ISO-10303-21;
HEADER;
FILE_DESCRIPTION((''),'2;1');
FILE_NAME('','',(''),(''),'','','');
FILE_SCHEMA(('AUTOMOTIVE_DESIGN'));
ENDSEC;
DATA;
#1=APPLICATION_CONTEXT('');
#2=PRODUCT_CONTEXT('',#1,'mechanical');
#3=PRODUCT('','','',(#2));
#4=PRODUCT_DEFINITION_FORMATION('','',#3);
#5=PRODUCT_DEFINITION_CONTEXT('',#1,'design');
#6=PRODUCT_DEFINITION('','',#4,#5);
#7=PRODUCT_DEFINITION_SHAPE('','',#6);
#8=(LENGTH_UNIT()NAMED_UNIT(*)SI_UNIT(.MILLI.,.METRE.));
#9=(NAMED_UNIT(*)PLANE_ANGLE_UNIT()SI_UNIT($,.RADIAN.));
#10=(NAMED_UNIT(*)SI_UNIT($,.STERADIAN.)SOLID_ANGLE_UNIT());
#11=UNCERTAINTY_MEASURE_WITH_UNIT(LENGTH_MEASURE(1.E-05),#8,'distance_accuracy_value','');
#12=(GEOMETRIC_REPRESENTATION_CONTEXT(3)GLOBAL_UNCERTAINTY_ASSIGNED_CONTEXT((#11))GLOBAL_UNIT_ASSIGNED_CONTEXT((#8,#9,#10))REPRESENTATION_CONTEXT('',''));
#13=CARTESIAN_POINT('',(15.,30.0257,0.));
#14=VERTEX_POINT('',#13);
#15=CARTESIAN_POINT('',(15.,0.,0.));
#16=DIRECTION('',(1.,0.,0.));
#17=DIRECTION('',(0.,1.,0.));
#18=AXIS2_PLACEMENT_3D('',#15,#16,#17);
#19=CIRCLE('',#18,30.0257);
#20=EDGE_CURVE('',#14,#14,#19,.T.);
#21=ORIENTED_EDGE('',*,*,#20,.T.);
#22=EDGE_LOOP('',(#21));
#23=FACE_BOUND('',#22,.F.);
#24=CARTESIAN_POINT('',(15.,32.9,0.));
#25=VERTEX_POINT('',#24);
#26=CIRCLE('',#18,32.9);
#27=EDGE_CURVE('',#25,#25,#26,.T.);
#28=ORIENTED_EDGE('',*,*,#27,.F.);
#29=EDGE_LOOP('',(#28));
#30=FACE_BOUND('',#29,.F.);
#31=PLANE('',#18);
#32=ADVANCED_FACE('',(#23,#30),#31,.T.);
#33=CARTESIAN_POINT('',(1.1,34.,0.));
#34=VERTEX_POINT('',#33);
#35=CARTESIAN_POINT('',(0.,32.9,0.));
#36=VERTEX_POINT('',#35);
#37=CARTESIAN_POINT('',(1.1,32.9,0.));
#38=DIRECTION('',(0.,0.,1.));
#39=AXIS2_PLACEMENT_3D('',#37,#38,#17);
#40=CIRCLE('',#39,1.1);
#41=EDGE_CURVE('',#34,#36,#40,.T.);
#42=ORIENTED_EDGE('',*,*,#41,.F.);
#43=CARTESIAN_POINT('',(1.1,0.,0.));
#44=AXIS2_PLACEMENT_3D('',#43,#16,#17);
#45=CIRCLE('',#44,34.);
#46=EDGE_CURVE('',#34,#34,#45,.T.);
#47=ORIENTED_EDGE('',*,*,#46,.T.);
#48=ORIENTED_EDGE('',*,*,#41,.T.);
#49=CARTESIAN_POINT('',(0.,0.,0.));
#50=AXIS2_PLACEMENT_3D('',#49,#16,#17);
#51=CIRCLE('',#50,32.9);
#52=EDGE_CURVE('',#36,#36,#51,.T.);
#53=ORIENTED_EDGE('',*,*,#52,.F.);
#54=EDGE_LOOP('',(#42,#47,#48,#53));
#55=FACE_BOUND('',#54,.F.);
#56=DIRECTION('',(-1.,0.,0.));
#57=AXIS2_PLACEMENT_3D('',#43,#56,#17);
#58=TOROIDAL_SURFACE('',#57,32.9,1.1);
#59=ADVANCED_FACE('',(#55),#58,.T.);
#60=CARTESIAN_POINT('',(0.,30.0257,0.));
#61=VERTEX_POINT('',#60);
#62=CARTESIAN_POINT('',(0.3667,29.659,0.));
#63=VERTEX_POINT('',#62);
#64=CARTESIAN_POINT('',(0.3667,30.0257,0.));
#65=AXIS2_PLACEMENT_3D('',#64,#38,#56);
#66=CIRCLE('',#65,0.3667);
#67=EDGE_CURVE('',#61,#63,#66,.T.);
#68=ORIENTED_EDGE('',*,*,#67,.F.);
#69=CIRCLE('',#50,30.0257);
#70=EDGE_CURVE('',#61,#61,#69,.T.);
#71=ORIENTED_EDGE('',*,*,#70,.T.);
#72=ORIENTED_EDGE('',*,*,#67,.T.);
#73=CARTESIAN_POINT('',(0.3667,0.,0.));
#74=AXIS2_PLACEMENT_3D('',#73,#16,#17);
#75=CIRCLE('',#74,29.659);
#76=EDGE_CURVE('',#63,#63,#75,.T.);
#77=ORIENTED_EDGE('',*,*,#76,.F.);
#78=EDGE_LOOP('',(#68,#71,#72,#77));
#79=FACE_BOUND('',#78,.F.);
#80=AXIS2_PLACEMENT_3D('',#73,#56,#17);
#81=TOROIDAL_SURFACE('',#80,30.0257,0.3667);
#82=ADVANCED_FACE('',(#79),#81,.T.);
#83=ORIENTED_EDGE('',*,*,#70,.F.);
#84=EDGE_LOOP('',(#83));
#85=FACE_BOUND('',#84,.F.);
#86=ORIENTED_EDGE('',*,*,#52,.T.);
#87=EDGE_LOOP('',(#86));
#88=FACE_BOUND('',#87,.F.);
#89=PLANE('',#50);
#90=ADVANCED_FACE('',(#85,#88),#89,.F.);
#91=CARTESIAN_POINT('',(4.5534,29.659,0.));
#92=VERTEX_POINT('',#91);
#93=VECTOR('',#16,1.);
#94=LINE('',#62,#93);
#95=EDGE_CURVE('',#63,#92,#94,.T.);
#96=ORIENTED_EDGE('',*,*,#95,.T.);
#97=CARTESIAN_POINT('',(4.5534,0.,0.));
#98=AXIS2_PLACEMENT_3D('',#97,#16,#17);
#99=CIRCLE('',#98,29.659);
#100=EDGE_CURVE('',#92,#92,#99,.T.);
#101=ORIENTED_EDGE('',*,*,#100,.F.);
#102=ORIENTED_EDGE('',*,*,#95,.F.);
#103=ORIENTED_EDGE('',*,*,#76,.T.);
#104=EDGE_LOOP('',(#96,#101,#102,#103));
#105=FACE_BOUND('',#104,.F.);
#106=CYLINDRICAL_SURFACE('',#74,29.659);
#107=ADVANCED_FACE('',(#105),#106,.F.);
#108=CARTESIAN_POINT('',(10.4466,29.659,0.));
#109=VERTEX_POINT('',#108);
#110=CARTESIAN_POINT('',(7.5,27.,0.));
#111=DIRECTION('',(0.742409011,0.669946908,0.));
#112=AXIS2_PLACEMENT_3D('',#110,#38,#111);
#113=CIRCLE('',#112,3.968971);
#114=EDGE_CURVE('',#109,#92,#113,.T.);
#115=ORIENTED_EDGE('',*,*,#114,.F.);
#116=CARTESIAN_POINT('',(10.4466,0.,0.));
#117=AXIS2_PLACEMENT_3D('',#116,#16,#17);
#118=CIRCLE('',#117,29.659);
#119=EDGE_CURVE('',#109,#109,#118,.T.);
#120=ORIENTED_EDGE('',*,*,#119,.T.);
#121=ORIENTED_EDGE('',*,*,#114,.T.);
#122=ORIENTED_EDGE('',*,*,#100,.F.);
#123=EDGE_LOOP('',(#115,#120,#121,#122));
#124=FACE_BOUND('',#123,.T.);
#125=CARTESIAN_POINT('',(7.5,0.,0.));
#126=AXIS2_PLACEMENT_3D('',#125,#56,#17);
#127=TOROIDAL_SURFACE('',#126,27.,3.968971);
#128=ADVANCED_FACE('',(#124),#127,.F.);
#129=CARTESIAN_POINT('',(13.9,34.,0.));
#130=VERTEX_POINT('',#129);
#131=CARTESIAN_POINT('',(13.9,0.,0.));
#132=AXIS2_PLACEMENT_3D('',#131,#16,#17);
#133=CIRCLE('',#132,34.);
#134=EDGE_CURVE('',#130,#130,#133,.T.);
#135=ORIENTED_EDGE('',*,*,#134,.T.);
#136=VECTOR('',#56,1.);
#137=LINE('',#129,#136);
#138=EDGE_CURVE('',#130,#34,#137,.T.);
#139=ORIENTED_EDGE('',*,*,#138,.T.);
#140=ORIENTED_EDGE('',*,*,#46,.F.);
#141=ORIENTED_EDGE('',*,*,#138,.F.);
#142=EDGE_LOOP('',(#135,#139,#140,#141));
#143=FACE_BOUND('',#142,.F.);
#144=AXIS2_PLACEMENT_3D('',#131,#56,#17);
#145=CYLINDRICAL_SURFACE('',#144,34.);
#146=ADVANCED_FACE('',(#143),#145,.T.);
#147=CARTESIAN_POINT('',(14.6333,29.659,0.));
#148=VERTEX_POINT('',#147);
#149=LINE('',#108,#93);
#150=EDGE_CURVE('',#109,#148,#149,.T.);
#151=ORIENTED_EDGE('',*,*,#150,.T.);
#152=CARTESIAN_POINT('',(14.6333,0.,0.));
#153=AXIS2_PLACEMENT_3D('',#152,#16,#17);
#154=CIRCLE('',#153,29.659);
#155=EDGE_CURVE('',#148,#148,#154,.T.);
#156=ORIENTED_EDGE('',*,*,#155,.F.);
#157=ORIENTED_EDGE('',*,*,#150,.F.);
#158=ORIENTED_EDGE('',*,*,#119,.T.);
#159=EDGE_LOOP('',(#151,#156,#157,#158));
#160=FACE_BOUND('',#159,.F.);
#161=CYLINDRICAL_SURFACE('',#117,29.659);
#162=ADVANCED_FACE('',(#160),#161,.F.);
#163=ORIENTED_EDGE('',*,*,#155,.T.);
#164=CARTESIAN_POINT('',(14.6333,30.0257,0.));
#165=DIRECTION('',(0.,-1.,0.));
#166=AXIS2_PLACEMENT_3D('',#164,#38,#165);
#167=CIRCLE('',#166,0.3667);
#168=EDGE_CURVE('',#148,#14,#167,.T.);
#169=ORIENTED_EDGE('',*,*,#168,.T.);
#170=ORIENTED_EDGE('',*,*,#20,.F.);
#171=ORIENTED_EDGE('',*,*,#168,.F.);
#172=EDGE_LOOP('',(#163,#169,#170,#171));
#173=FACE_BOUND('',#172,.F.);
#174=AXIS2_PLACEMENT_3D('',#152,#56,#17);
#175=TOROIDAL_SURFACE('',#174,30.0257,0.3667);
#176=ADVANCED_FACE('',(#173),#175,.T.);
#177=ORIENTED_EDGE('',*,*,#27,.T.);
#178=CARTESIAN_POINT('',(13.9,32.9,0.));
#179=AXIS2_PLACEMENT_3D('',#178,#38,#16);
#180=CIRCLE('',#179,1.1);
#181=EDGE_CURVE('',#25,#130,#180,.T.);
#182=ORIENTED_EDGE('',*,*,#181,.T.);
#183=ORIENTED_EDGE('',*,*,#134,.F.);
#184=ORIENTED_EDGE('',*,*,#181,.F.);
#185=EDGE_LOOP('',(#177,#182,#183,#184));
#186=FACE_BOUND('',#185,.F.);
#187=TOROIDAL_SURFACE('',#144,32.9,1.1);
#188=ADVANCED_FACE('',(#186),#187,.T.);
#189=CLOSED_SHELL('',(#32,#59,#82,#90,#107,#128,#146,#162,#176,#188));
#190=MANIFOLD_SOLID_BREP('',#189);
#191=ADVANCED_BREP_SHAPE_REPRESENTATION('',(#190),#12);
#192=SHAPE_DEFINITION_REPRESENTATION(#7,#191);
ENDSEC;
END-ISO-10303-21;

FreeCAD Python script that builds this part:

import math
import FreeCAD as App
import Part
import Sketcher
Q = App.Units.Quantity

doc = App.newDocument("Part")
body = doc.addObject("PartDesign::Body", "Body")

sketch1 = body.newObject("Sketcher::SketchObject", "Sketch")
sketch1.AttachmentSupport = (doc.getObject("XY_Plane"), [""])
sketch1.MapMode = "FlatFace"
sketch1.addGeometry([
    Part.ArcOfCircle(Part.Circle(App.Vector(1.1, 32.9, 0), App.Vector(0, 0, 1), 1.1), math.radians(90), math.radians(180)),
    Part.LineSegment(App.Vector(0, 32.9, 0), App.Vector(0, 30.0257, 0)),
    Part.ArcOfCircle(Part.Circle(App.Vector(0.3667, 30.0257, 0), App.Vector(0, 0, 1), 0.3667), math.radians(180), math.radians(270)),
    Part.LineSegment(App.Vector(0.3667, 29.659, 0), App.Vector(4.5534, 29.659, 0)),
    Part.ArcOfCircle(Part.Circle(App.Vector(7.5, 27, 0), App.Vector(0, 0, 1), 3.968971), math.radians(42.062967), math.radians(137.937033)),
    Part.LineSegment(App.Vector(10.4466, 29.659, 0), App.Vector(14.6333, 29.659, 0)),
    Part.ArcOfCircle(Part.Circle(App.Vector(14.6333, 30.0257, 0), App.Vector(0, 0, 1), 0.3667), math.radians(-90), math.radians(0)),
    Part.LineSegment(App.Vector(15, 30.0257, 0), App.Vector(15, 32.9, 0)),
    Part.ArcOfCircle(Part.Circle(App.Vector(13.9, 32.9, 0), App.Vector(0, 0, 1), 1.1), math.radians(0), math.radians(90)),
    Part.LineSegment(App.Vector(13.9, 34, 0), App.Vector(1.1, 34, 0)),
], False)
sketch1.addConstraint([
    Sketcher.Constraint("Tangent", 0, 2, 1, 1),
    Sketcher.Constraint("Tangent", 1, 2, 2, 1),
    Sketcher.Constraint("Tangent", 2, 2, 3, 1),
    Sketcher.Constraint("Coincident", 3, 2, 4, 2),
    Sketcher.Constraint("Coincident", 4, 1, 5, 1),
    Sketcher.Constraint("Tangent", 5, 2, 6, 1),
    Sketcher.Constraint("Tangent", 6, 2, 7, 1),
    Sketcher.Constraint("Tangent", 7, 2, 8, 1),
    Sketcher.Constraint("Tangent", 8, 2, 9, 1),
    Sketcher.Constraint("Tangent", 9, 2, 0, 1),
    Sketcher.Constraint("Vertical", 1),
    Sketcher.Constraint("Horizontal", 3),
    Sketcher.Constraint("Horizontal", 5),
    Sketcher.Constraint("Vertical", 7),
    Sketcher.Constraint("Horizontal", 9),
    Sketcher.Constraint("Equal", 2, 6),
    Sketcher.Constraint("Equal", 0, 8),
    Sketcher.Constraint("PointOnObject", 0, 2, -2),
    Sketcher.Constraint("Horizontal", 2, 3, 6, 3),
    Sketcher.Constraint("Equal", 3, 5),
    Sketcher.Constraint("Radius", 0, Q("1.1 mm")),
    Sketcher.Constraint("DistanceX", 9, 2, 9, 1, Q("12.8 mm")),
    Sketcher.Constraint("DistanceY", -1, 1, 4, 3, Q("27 mm")),
    Sketcher.Constraint("DistanceY", -1, 1, 8, 2, Q("34 mm")),
    Sketcher.Constraint("Radius", 4, Q("3.969 mm")),
    Sketcher.Constraint("Radius", 2, Q("0.3667 mm")),
    Sketcher.Constraint("DistanceX", 3, 2, 5, 2, Q("10.08 mm")),
])
revolution = body.newObject("PartDesign::Revolution", "Revolution")
revolution.Profile = sketch1
revolution.ReferenceAxis = (sketch1, ["H_Axis"])
revolution.Angle = 360

doc.recompute()
